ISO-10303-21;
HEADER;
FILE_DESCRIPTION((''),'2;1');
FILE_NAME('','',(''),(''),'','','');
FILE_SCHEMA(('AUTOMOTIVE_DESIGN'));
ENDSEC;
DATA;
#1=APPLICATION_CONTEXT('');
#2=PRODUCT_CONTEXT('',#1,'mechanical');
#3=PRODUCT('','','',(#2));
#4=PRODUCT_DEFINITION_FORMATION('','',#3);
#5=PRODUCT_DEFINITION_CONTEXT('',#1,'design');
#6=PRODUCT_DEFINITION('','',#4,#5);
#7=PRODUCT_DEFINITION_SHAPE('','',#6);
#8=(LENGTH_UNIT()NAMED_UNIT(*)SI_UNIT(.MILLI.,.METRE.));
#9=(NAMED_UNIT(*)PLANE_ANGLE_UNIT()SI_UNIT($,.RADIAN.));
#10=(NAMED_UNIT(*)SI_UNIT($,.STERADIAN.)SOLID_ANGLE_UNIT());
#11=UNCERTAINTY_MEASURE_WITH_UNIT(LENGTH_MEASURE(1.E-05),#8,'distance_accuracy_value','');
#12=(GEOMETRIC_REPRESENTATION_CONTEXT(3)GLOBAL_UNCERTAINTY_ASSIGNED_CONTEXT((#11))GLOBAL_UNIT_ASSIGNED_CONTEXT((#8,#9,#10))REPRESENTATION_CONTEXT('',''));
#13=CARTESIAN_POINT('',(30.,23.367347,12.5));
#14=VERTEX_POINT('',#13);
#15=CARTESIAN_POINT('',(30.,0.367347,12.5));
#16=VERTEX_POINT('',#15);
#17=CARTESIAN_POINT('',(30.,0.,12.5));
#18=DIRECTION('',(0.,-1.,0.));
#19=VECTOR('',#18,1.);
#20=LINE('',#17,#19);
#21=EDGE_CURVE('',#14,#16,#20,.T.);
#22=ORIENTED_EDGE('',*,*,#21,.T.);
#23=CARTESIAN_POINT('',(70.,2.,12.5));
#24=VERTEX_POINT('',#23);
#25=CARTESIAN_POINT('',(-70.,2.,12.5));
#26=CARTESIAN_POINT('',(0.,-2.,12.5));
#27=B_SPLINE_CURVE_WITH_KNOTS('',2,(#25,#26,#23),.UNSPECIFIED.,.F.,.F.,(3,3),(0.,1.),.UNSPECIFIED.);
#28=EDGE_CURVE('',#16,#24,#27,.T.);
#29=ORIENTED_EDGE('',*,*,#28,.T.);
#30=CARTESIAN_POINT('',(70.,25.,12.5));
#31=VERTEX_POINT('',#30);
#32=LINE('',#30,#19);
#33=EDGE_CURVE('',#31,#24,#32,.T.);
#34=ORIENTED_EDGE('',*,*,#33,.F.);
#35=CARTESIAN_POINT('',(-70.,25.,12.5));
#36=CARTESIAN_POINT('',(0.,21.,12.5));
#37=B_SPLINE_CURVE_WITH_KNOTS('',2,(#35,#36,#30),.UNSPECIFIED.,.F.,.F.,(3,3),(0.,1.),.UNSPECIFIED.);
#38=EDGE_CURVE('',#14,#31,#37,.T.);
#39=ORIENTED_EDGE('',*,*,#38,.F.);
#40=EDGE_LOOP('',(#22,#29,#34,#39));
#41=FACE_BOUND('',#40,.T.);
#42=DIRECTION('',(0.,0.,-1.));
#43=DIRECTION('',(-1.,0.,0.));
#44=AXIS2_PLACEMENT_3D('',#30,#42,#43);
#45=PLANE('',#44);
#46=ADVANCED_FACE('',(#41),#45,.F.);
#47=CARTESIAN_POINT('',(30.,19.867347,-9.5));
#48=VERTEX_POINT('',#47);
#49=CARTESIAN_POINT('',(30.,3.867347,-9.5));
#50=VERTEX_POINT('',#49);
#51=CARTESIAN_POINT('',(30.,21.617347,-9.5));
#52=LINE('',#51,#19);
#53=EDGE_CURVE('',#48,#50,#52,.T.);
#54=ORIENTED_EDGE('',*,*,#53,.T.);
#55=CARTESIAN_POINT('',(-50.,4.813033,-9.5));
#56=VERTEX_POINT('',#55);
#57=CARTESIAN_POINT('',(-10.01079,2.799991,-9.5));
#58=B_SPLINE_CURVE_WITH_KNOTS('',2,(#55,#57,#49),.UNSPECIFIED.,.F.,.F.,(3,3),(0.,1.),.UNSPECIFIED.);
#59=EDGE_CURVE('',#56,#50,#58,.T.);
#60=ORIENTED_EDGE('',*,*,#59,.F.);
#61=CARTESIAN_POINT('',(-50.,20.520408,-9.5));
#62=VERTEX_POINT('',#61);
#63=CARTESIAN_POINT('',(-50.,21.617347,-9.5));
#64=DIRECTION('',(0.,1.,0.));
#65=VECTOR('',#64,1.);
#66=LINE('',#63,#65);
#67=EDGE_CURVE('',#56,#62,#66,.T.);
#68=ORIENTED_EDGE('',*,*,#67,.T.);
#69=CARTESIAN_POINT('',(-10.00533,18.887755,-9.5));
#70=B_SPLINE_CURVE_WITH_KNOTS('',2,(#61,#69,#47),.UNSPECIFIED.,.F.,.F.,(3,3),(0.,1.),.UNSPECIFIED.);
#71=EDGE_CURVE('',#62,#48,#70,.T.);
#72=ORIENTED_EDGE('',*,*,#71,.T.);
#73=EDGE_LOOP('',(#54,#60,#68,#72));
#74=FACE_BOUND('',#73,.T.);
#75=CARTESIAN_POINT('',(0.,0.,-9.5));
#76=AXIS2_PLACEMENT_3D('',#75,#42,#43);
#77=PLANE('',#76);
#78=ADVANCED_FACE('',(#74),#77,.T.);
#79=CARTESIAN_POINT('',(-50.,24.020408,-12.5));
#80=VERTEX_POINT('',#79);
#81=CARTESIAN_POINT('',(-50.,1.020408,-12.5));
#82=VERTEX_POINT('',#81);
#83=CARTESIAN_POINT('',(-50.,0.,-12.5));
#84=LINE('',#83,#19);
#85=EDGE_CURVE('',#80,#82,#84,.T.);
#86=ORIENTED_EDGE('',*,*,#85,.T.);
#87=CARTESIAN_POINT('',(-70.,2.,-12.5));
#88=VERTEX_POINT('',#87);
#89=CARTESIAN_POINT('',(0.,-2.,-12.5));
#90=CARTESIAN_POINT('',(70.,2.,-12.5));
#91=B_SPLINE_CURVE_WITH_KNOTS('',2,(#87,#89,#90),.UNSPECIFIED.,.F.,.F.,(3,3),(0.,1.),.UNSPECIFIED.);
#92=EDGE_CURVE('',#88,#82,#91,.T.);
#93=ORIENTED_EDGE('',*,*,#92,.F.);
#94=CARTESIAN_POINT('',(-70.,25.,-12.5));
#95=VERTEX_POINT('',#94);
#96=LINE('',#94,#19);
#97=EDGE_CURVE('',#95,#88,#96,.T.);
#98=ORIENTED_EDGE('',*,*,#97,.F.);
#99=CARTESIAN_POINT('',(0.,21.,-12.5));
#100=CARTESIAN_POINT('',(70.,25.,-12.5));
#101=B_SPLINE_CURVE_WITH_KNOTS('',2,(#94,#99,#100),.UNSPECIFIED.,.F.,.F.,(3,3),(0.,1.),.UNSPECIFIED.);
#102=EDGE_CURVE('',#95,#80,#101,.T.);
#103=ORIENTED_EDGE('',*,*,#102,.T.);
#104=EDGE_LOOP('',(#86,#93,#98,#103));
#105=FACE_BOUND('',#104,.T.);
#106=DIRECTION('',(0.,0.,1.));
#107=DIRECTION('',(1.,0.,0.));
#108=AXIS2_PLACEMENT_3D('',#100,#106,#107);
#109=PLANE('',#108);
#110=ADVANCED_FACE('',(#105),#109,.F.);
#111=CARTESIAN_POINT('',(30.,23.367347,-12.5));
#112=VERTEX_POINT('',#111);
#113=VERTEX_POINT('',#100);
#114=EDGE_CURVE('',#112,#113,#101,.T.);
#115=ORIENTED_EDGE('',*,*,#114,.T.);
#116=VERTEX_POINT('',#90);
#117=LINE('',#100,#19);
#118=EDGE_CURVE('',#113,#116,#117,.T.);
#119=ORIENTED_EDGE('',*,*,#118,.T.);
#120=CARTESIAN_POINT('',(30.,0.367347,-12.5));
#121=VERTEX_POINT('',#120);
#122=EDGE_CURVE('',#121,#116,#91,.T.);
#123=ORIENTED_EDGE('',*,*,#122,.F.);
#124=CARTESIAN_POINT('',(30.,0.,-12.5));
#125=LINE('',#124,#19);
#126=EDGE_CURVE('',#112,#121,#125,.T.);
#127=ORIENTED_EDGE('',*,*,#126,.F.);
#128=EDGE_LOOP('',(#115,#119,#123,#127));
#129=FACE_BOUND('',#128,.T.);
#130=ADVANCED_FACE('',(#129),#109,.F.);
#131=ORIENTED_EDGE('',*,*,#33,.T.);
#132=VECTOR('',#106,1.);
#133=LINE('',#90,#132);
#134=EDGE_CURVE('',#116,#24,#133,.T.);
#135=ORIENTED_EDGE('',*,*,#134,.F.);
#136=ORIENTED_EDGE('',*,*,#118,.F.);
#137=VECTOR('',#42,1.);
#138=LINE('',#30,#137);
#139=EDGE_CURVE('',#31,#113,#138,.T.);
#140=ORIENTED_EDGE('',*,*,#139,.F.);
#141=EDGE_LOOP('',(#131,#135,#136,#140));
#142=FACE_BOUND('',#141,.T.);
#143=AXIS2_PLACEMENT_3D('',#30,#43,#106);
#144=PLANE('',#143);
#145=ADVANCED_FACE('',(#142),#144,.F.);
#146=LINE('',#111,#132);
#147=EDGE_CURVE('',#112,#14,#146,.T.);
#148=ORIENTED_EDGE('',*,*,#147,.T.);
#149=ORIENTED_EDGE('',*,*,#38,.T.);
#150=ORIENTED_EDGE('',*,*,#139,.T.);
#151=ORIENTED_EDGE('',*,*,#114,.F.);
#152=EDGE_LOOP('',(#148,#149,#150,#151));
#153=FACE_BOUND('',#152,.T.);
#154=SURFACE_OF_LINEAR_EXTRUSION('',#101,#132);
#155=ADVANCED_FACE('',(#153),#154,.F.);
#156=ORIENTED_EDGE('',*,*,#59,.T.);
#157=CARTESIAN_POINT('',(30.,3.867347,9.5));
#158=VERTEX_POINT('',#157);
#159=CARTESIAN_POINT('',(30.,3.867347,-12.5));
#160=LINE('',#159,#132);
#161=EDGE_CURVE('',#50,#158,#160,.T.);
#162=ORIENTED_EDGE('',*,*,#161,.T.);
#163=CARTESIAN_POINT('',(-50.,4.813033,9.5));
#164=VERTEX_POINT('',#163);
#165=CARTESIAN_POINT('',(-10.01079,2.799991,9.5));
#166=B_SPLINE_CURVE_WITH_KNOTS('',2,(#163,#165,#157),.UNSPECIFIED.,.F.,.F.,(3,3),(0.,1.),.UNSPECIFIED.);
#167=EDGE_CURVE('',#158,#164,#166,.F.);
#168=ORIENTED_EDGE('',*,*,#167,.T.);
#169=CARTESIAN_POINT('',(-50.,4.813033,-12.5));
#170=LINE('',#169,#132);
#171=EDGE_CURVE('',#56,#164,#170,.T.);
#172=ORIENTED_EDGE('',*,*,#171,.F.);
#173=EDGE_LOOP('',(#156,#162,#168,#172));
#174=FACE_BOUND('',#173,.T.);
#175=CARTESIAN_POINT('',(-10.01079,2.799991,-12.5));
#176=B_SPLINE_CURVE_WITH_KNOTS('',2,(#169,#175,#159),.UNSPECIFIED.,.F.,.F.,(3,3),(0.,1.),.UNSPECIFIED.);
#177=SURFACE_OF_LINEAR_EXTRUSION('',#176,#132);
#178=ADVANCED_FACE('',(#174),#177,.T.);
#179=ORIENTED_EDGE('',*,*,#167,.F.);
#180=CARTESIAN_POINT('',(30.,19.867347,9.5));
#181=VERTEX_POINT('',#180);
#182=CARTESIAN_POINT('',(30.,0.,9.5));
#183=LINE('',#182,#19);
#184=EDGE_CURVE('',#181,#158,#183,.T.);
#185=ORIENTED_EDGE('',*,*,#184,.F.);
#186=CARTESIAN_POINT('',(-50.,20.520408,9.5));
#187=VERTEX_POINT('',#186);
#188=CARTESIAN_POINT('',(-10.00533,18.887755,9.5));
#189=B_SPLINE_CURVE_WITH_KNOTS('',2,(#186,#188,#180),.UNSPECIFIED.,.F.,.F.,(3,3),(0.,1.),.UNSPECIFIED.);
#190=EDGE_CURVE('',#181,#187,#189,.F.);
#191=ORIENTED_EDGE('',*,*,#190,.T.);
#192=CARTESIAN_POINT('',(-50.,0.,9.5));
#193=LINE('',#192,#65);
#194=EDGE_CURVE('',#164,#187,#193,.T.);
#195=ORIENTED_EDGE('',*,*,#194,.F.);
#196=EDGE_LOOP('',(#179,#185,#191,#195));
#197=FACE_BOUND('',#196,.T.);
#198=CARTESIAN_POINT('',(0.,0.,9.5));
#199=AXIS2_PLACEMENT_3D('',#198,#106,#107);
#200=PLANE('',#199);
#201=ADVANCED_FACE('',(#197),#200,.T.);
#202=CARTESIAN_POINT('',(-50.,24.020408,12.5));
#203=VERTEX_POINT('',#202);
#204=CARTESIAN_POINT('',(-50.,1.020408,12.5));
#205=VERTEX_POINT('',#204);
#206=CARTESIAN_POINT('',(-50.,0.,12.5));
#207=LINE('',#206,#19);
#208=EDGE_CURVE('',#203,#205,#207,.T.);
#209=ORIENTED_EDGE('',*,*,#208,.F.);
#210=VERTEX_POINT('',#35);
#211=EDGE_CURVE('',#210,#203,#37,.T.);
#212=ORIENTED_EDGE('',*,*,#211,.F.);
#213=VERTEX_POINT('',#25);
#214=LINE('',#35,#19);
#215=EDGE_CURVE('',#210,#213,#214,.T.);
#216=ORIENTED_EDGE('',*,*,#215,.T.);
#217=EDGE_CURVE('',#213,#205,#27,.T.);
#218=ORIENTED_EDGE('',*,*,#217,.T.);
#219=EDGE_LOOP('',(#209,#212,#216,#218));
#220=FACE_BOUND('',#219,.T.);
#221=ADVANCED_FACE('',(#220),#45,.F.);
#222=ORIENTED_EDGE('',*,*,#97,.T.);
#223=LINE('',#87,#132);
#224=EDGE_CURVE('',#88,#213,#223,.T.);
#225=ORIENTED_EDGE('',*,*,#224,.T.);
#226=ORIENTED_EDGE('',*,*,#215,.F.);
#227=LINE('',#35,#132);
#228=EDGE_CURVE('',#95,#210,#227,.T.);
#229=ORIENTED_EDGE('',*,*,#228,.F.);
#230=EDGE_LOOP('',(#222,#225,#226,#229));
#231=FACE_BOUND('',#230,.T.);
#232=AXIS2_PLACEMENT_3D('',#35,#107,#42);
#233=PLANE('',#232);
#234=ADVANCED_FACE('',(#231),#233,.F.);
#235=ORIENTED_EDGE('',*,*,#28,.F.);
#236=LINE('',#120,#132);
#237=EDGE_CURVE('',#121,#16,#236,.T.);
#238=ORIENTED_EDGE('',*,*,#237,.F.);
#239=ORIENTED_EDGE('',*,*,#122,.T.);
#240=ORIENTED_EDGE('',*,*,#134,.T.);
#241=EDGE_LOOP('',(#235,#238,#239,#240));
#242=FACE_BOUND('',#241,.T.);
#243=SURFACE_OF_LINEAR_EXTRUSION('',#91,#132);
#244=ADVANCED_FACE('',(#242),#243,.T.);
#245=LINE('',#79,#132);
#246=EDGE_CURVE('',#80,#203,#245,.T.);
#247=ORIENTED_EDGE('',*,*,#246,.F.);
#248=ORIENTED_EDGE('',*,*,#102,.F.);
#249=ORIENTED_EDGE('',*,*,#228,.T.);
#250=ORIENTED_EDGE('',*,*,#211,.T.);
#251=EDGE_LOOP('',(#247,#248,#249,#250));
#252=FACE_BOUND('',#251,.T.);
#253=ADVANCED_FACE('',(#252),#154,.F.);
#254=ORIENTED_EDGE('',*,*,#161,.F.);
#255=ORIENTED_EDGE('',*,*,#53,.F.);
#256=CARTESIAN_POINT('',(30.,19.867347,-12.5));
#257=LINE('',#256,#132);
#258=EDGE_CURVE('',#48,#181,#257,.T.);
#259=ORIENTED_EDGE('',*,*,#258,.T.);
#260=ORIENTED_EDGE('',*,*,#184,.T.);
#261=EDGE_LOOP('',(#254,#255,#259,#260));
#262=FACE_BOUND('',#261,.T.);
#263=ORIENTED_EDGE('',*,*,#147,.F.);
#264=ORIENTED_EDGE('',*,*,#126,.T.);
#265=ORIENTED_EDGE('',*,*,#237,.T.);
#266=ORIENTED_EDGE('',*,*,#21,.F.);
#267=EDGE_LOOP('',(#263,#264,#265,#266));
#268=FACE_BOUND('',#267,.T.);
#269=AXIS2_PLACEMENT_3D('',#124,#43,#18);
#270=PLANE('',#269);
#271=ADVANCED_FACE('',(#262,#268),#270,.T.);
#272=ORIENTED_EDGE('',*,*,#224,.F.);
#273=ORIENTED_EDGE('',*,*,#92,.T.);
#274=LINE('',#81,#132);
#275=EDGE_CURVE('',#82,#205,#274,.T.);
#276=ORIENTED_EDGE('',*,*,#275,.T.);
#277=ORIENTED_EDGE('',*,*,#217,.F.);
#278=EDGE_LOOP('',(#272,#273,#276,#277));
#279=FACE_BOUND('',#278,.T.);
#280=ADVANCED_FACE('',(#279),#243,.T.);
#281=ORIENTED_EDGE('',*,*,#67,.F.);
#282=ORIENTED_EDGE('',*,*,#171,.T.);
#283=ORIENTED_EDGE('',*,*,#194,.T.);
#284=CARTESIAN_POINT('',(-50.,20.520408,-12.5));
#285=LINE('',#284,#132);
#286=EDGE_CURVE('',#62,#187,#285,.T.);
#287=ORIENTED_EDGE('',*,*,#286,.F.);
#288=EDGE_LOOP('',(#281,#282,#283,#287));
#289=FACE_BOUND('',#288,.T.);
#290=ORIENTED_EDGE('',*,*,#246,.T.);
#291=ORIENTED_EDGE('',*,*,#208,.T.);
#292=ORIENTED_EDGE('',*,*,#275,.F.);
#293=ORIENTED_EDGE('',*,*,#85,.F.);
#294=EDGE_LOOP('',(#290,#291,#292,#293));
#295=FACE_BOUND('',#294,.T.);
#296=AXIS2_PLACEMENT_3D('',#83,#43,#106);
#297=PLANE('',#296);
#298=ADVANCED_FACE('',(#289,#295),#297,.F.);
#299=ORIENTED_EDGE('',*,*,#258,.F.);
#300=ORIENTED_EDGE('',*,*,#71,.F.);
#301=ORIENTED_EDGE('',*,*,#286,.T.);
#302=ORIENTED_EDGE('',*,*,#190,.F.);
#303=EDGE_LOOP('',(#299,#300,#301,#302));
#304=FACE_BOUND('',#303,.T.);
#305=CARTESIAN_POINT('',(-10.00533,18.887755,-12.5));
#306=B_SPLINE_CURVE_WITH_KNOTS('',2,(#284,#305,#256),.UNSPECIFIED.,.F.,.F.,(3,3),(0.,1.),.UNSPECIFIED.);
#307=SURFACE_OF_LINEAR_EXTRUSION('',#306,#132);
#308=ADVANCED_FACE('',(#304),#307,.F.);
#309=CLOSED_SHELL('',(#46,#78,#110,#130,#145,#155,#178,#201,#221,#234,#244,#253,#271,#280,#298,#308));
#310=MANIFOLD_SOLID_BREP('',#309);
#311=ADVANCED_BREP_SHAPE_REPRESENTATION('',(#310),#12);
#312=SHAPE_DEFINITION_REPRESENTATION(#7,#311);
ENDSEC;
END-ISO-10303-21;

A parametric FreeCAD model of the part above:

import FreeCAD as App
import Part
import Sketcher

V = App.Vector


def add_polygon(sketch, points):
    """Adds a closed chain of lines whose ends are joined by coincident constraints."""
    first, n = sketch.GeometryCount, len(points)
    for a, b in zip(points, points[1:] + points[:1]):
        sketch.addGeometry(Part.LineSegment(App.Vector(*a, 0), App.Vector(*b, 0)), False)
    for i in range(n):
        sketch.addConstraint(Sketcher.Constraint("Coincident", first + i, 2, first + (i + 1) % n, 1))

doc = App.newDocument("Part")
body = doc.addObject("PartDesign::Body", "Body")

sketch1 = body.newObject("Sketcher::SketchObject", "Sketch")
sketch1.AttachmentSupport = (doc.getObject("XZ_Plane"), [""])
sketch1.MapMode = "FlatFace"
add_polygon(sketch1, [(-70, -12), (-70, 12), (70, 12), (70, -12)])
sketch1.addConstraint([
    Sketcher.Constraint("Vertical", 0),
    Sketcher.Constraint("Horizontal", 1),
    Sketcher.Constraint("Vertical", 2),
    Sketcher.Constraint("Horizontal", 3),
    Sketcher.Constraint("Symmetric", 0, 2, 2, 2, -1, 1),
    Sketcher.Constraint("DistanceX", 1, 1, 1, 2, 140.0),
    Sketcher.Constraint("DistanceY", 0, 1, 0, 2, 25.0),
])
pad1 = body.newObject("PartDesign::Pad", "Pad")
pad1.Profile = sketch1
pad1.Length = 25
pad1.Reversed = True

sketch2 = body.newObject("Sketcher::SketchObject", "Sketch001")
sketch2.AttachmentSupport = (doc.getObject("XY_Plane"), [""])
sketch2.MapMode = "FlatFace"
sketch2.AttachmentOffset = App.Placement(V(0, 0, 12.5), App.Rotation())
sketch2.addGeometry([
    Part.BSplineCurve([V(30, 23.367347, 0), V(50, 23.857143, 0), V(70, 25, 0)], [3, 3], [0.714285714, 1], False, 2, [1, 1, 1], False),
    Part.LineSegment(V(70, 25, 0), V(-70, 25, 0)),
    Part.BSplineCurve([V(-70, 25, 0), V(-60, 24.428571, 0), V(-50, 24.020408, 0)], [3, 3], [0, 0.142857143], False, 2, [1, 1, 1], False),
    Part.LineSegment(V(-50, 24.020408, 0), V(-50, 20.520408, 0)),
    Part.BSplineCurve([V(-50, 20.520408, 0), V(-25.002082, 19.499949, 0), V(0, 19.5, 0)], [3, 3], [0, 0.625031228], False, 2, [1, 1, 1], False),
    Part.BSplineCurve([V(0, 19.5, 0), V(14.999251, 19.500031, 0), V(30, 19.867347, 0)], [3, 3], [0.625031228, 1], False, 2, [1, 1, 1], False),
    Part.LineSegment(V(30, 19.867347, 0), V(30, 23.367347, 0)),
    Part.BSplineCurve([V(-50, 4.813033, 0), V(-25.004216, 3.554755, 0), V(0, 3.5, 0)], [3, 3], [0, 0.625063216], False, 2, [1, 1, 1], False),
    Part.LineSegment(V(-50, 4.813033, 0), V(-50, 1.020408, 0)),
    Part.BSplineCurve([V(-70, 2, 0), V(-60, 1.428571, 0), V(-50, 1.020408, 0)], [3, 3], [0, 0.142857143], False, 2, [1, 1, 1], False),
    Part.LineSegment(V(-70, 2, 0), V(-70, 0, 0)),
    Part.LineSegment(V(-70, 0, 0), V(70, 0, 0)),
    Part.LineSegment(V(70, 0, 0), V(70, 2, 0)),
    Part.BSplineCurve([V(30, 0.367347, 0), V(50, 0.857143, 0), V(70, 2, 0)], [3, 3], [0.714285714, 1], False, 2, [1, 1, 1], False),
    Part.LineSegment(V(30, 0.367347, 0), V(30, 3.867347, 0)),
    Part.BSplineCurve([V(0, 3.5, 0), V(14.998483, 3.467156, 0), V(30, 3.867347, 0)], [3, 3], [0.625063216, 1], False, 2, [1, 1, 1], False),
], False)
sketch2.addConstraint([
    Sketcher.Constraint("Block", 0),
    Sketcher.Constraint("Block", 2),
    Sketcher.Constraint("Block", 4),
    Sketcher.Constraint("Block", 5),
    Sketcher.Constraint("Block", 7),
    Sketcher.Constraint("Block", 9),
    Sketcher.Constraint("Block", 13),
    Sketcher.Constraint("Block", 15),
    Sketcher.Constraint("Coincident", 0, 2, 1, 1),
    Sketcher.Constraint("Coincident", 1, 2, 2, 1),
    Sketcher.Constraint("Coincident", 2, 2, 3, 1),
    Sketcher.Constraint("Coincident", 3, 2, 4, 1),
    Sketcher.Constraint("Coincident", 5, 2, 6, 1),
    Sketcher.Constraint("Coincident", 6, 2, 0, 1),
    Sketcher.Constraint("Coincident", 7, 1, 8, 1),
    Sketcher.Constraint("Coincident", 8, 2, 9, 2),
    Sketcher.Constraint("Coincident", 9, 1, 10, 1),
    Sketcher.Constraint("Coincident", 10, 2, 11, 1),
    Sketcher.Constraint("Coincident", 11, 2, 12, 1),
    Sketcher.Constraint("Coincident", 12, 2, 13, 2),
    Sketcher.Constraint("Coincident", 13, 1, 14, 1),
    Sketcher.Constraint("Coincident", 14, 2, 15, 2),
    Sketcher.Constraint("Vertical", 10),
    Sketcher.Constraint("Horizontal", 11),
    Sketcher.Constraint("Vertical", 12),
    Sketcher.Constraint("PointOnObject", 10, 2, -1),
])
pocket1 = body.newObject("PartDesign::Pocket", "Pocket")
pocket1.Profile = sketch2
pocket1.Length = 25

sketch3 = body.newObject("Sketcher::SketchObject", "Sketch002")
sketch3.AttachmentSupport = (doc.getObject("XY_Plane"), [""])
sketch3.MapMode = "FlatFace"
sketch3.AttachmentOffset = App.Placement(V(0, 0, 12.5), App.Rotation())
add_polygon(sketch3, [(30, 1), (30, 21), (-50, 21), (-50, 1)])
sketch3.addConstraint([
    Sketcher.Constraint("Vertical", 0),
    Sketcher.Constraint("Horizontal", 1),
    Sketcher.Constraint("Vertical", 2),
    Sketcher.Constraint("Horizontal", 3),
    Sketcher.Constraint("DistanceX", 1, 2, 1, 1, 80.0),
    Sketcher.Constraint("DistanceX", -1, 1, 0, 2, 30.0),
    Sketcher.Constraint("DistanceY", 0, 1, 0, 2, 19.984016),
    Sketcher.Constraint("DistanceY", -1, 1, 0, 2, 21.469903),
])
pocket2 = body.newObject("PartDesign::Pocket", "Pocket001")
pocket2.Profile = sketch3
pocket2.Length = 3

sketch4 = body.newObject("Sketcher::SketchObject", "Sketch003")
sketch4.AttachmentSupport = (doc.getObject("XY_Plane"), [""])
sketch4.MapMode = "FlatFace"
sketch4.AttachmentOffset = App.Placement(V(0, 0, -12.5), App.Rotation())
add_polygon(sketch4, [(30, 22), (30, 3), (-50, 3), (-50, 22)])
sketch4.addConstraint([
    Sketcher.Constraint("Vertical", 0),
    Sketcher.Constraint("Horizontal", 1),
    Sketcher.Constraint("Vertical", 2),
    Sketcher.Constraint("Horizontal", 3),
    Sketcher.Constraint("DistanceX", 1, 2, 1, 1, 80.0),
    Sketcher.Constraint("DistanceX", -1, 1, 0, 2, 30.0),
    Sketcher.Constraint("DistanceY", 0, 2, 0, 1, 18.700626),
    Sketcher.Constraint("DistanceY", -1, 1, 0, 2, 2.916721),
])
pocket3 = body.newObject("PartDesign::Pocket", "Pocket002")
pocket3.Profile = sketch4
pocket3.Length = 3
pocket3.Reversed = True

doc.recompute()
